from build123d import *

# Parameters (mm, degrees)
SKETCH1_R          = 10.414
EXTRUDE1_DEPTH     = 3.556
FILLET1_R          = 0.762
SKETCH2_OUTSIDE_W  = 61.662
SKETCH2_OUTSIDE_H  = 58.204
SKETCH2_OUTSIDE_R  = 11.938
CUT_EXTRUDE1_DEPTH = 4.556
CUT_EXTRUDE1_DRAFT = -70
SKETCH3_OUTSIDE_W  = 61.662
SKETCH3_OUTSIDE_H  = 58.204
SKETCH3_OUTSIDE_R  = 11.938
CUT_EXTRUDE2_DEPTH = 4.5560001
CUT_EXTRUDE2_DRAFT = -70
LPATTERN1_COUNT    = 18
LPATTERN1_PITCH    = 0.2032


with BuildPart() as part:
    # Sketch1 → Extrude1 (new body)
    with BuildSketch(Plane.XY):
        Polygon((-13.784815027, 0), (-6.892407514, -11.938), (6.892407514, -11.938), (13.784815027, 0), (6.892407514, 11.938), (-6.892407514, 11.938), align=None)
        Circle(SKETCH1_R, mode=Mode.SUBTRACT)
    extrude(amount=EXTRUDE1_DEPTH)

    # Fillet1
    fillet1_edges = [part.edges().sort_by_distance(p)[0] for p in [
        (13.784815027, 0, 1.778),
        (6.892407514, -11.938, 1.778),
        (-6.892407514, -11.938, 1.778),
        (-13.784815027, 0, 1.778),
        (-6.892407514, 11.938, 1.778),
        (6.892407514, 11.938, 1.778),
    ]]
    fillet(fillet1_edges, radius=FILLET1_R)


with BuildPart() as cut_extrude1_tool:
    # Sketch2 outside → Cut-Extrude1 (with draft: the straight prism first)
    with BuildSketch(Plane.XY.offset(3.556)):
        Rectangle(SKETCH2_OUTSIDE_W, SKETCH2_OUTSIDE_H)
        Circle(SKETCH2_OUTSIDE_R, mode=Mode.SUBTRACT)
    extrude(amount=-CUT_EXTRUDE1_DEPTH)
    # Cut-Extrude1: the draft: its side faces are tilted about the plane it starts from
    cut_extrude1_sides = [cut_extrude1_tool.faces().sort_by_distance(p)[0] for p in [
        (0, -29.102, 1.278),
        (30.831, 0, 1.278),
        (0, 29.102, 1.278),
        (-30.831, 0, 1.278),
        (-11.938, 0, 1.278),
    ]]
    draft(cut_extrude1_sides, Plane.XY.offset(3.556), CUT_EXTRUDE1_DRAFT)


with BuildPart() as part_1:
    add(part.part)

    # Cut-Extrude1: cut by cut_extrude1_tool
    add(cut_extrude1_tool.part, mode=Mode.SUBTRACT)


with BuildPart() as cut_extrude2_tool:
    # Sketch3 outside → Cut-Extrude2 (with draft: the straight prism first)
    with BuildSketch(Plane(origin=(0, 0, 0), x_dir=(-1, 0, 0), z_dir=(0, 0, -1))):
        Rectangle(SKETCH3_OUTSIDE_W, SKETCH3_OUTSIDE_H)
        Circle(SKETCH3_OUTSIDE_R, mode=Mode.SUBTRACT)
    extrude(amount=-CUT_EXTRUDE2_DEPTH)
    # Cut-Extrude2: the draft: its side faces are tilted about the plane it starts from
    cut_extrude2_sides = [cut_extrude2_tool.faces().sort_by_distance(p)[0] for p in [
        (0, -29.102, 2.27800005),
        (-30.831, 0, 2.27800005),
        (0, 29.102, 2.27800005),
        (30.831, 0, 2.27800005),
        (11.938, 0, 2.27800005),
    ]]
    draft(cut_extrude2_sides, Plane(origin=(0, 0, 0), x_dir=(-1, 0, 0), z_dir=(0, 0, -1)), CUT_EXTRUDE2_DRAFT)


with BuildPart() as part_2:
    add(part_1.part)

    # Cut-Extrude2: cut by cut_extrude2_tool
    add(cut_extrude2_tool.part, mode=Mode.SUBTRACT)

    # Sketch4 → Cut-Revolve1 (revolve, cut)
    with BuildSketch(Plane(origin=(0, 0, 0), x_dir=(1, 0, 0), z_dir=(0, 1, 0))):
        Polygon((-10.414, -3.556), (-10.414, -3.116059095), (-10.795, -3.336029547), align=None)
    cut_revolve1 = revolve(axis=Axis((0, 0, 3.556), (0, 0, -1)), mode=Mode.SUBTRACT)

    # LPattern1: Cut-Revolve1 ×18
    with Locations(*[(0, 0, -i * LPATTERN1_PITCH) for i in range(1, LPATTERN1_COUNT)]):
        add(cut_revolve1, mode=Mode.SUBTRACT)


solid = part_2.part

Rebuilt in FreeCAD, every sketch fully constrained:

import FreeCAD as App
import Part
import Sketcher
Q = App.Units.Quantity


def edges_at(feature, points):
    """Names of the edges that pass closest to the given points."""
    edges = feature.Shape.Edges
    near = lambda p: min(range(len(edges)), key=lambda i: edges[i].distToShape(Part.Vertex(*p))[0])
    return sorted({f"Edge{near(p) + 1}" for p in points})


def faces_at(feature, points):
    """Names of the faces that lie closest to the given points."""
    faces = feature.Shape.Faces
    near = lambda p: min(range(len(faces)), key=lambda i: faces[i].distToShape(Part.Vertex(*p))[0])
    return sorted({f"Face{near(p) + 1}" for p in points})


def add_polygon(sketch, points):
    """Adds a closed chain of lines whose ends are joined by coincident constraints."""
    first, n = sketch.GeometryCount, len(points)
    for a, b in zip(points, points[1:] + points[:1]):
        sketch.addGeometry(Part.LineSegment(App.Vector(*a, 0), App.Vector(*b, 0)), False)
    for i in range(n):
        sketch.addConstraint(Sketcher.Constraint("Coincident", first + i, 2, first + (i + 1) % n, 1))

doc = App.newDocument("Part")
body = doc.addObject("PartDesign::Body", "Body")

# Sketch on XY plane
sketch1 = body.newObject("Sketcher::SketchObject", "Sketch")
sketch1.AttachmentSupport = (doc.getObject("XY_Plane"), [""])
sketch1.MapMode = "FlatFace"
add_polygon(sketch1, [(-14, 0), (-7, -12), (7, -12), (14, 0), (7, 12), (-7, 12)])  # lines 0-5
sketch1.addGeometry(Part.Circle(App.Vector(0, 0, 0), App.Vector(0, 0, 1), 10), False)  # 6
sketch1.addConstraint([
    Sketcher.Constraint("Horizontal", 1),
    Sketcher.Constraint("Horizontal", 4),
    Sketcher.Constraint("Coincident", 6, 3, -1, 1),
    Sketcher.Constraint("Symmetric", 0, 2, 3, 2, -1, 1),
    Sketcher.Constraint("Symmetric", 2, 2, 5, 2, -1, 1),
    Sketcher.Constraint("PointOnObject", 2, 2, -1),
    Sketcher.Constraint("Parallel", 2, 5),
    Sketcher.Constraint("Vertical", 1, 2, 3, 2),
    Sketcher.Constraint("Diameter", 6, Q("0.82 in")),
    Sketcher.Constraint("Angle", 0, Q("-60 deg")),
    Sketcher.Constraint("DistanceY", 0, 2, -1, 1, Q("0.47 in")),
    Sketcher.Constraint("DistanceX", 1, 1, 1, 2, Q("13.784815 mm")),
])
pad1 = body.newObject("PartDesign::Pad", "Pad")
pad1.Profile = sketch1
pad1.Length = Q("0.14 in")
doc.recompute()

fillet = body.newObject("PartDesign::Fillet", "Fillet")
fillet.Base = (pad1, edges_at(pad1, [
    (13.785, 0, 1.778),
    (6.892, -11.938, 1.778),
    (-6.892, -11.938, 1.778),
    (-13.785, 0, 1.778),
    (-6.892, 11.938, 1.778),
    (6.892, 11.938, 1.778),
]))
fillet.Radius = Q("0.03 in")
body2 = doc.addObject("PartDesign::Body", "Body001")

# Sketch on XY plane
sketch2 = body2.newObject("Sketcher::SketchObject", "Sketch001")
sketch2.AttachmentSupport = (doc.getObject("XY_Plane001"), [""])
sketch2.MapMode = "FlatFace"
sketch2.AttachmentOffset = App.Placement(App.Vector(0, 0, 0.14 * 25.4), App.Rotation())
add_polygon(sketch2, [(-31, 29), (-31, -29), (31, -29), (31, 29)])  # lines 0-3
sketch2.addGeometry(Part.Circle(App.Vector(0, 0, 0), App.Vector(0, 0, 1), 12), False)  # 4
sketch2.addConstraint([
    Sketcher.Constraint("Vertical", 0),
    Sketcher.Constraint("Horizontal", 1),
    Sketcher.Constraint("Vertical", 2),
    Sketcher.Constraint("Horizontal", 3),
    Sketcher.Constraint("Coincident", 4, 3, -1, 1),
    Sketcher.Constraint("Symmetric", 0, 2, 2, 2, -1, 1),
    Sketcher.Constraint("Diameter", 4, Q("0.94 in")),
    Sketcher.Constraint("DistanceX", 1, 1, 1, 2, Q("61.662 mm")),
    Sketcher.Constraint("DistanceY", 0, 2, 0, 1, Q("58.204 mm")),
])
pad2 = body2.newObject("PartDesign::Pad", "Pad001")
pad2.Profile = sketch2
pad2.Length = 4.556
pad2.Reversed = True
doc.recompute()

datumplane = body2.newObject("PartDesign::Plane", "DatumPlane")
datumplane.AttachmentSupport = (doc.getObject("XY_Plane001"), [""])
datumplane.MapMode = "FlatFace"
datumplane.AttachmentOffset = App.Placement(App.Vector(0, 0, 0.14 * 25.4), App.Rotation())
draft = body2.newObject("PartDesign::Draft", "Draft")
draft.Base = (pad2, faces_at(pad2, [
    (0, -29.102, 1.278),
    (30.831, 0, 1.278),
    (0, 29.102, 1.278),
    (-30.831, 0, 1.278),
    (-11.938, 0, 1.278),
]))
draft.NeutralPlane = (datumplane, [""])
draft.Angle = 70
draft.Reversed = True
doc.recompute()

boolean = body.newObject("PartDesign::Boolean", "Boolean")
boolean.Type = "Cut"
boolean.addObjects([body2])
body3 = doc.addObject("PartDesign::Body", "Body002")

# Sketch on XY plane
sketch3 = body3.newObject("Sketcher::SketchObject", "Sketch002")
sketch3.AttachmentSupport = (doc.getObject("XY_Plane002"), [""])
sketch3.MapMode = "FlatFace"
add_polygon(sketch3, [(31, 29), (31, -29), (-31, -29), (-31, 29)])  # lines 0-3
sketch3.addGeometry(Part.Circle(App.Vector(0, 0, 0), App.Vector(0, 0, 1), 12), False)  # 4
sketch3.addConstraint([
    Sketcher.Constraint("Vertical", 0),
    Sketcher.Constraint("Horizontal", 1),
    Sketcher.Constraint("Vertical", 2),
    Sketcher.Constraint("Horizontal", 3),
    Sketcher.Constraint("Coincident", 4, 3, -1, 1),
    Sketcher.Constraint("Symmetric", 0, 2, 2, 2, -1, 1),
    Sketcher.Constraint("Diameter", 4, Q("0.94 in")),
    Sketcher.Constraint("DistanceX", 1, 2, 1, 1, Q("61.662 mm")),
    Sketcher.Constraint("DistanceY", 0, 2, 0, 1, Q("58.204 mm")),
])
pad3 = body3.newObject("PartDesign::Pad", "Pad002")
pad3.Profile = sketch3
pad3.Length = 4.556
doc.recompute()

draft2 = body3.newObject("PartDesign::Draft", "Draft001")
draft2.Base = (pad3, faces_at(pad3, [
    (0, -29.102, 2.278),
    (-30.831, 0, 2.278),
    (0, 29.102, 2.278),
    (30.831, 0, 2.278),
    (11.938, 0, 2.278),
]))
draft2.NeutralPlane = (doc.getObject("XY_Plane002"), [""])
draft2.Angle = 70
draft2.Reversed = False
doc.recompute()

boolean2 = body.newObject("PartDesign::Boolean", "Boolean001")
boolean2.Type = "Cut"
boolean2.addObjects([body3])

# Sketch on XZ plane
sketch4 = body.newObject("Sketcher::SketchObject", "Sketch003")
sketch4.AttachmentSupport = (doc.getObject("XZ_Plane"), [""])
sketch4.MapMode = "FlatFace"
add_polygon(sketch4, [(-10.41, 3.56), (-10.41, 3.12), (-10.79, 3.34)])  # lines 0-2
sketch4.addConstraint([
    Sketcher.Constraint("Vertical", 0),
    Sketcher.Constraint("Equal", 1, 2),
    Sketcher.Constraint("Angle", 1, Q("150 deg")),
    Sketcher.Constraint("DistanceX", 0, 2, -1, 1, Q("0.41 in")),
    Sketcher.Constraint("DistanceY", -1, 1, 2, 2, Q("0.14 in")),
    Sketcher.Constraint("DistanceX", 1, 2, -1, 1, Q("0.425 in")),
])
groove = body.newObject("PartDesign::Groove", "Groove")
groove.Profile = sketch4
groove.ReferenceAxis = (sketch4, ["V_Axis"])
groove.Angle = 360
doc.recompute()

linearpattern = body.newObject("PartDesign::LinearPattern", "LinearPattern")
linearpattern.Originals = [groove]
linearpattern.Direction = (doc.getObject("Z_Axis"), [""])
linearpattern.Mode = "offset"
linearpattern.Offset = Q("0.008 in")
linearpattern.Occurrences = 18
linearpattern.Reversed = True
body.Tip = linearpattern

doc.recompute()
